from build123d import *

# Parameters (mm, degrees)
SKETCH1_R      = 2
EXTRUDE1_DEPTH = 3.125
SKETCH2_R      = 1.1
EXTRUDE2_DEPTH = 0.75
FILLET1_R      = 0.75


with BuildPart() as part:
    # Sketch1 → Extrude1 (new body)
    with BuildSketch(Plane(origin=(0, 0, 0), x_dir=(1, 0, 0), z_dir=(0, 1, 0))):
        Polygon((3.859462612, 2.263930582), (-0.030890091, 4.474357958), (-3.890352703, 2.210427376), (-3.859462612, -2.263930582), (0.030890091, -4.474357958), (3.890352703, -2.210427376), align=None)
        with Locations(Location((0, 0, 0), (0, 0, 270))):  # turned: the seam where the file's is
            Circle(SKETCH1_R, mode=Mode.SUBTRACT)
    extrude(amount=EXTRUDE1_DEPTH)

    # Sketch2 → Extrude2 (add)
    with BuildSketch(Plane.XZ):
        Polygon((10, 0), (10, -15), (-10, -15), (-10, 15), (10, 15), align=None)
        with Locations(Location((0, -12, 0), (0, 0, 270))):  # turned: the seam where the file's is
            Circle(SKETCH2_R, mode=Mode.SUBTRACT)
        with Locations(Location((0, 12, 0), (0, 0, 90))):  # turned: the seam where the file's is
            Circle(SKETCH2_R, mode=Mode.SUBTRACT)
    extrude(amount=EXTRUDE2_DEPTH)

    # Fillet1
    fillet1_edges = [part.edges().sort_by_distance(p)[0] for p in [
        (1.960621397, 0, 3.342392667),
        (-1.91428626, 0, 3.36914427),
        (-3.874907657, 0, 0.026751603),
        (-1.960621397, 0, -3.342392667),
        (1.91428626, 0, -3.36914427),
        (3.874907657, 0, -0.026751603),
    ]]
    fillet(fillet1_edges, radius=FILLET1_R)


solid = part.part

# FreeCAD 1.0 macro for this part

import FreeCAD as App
import Part
import Sketcher
from FreeCAD import Vector


def edges_at(feature, points):
    """Names of the edges that pass closest to the given points."""
    edges = feature.Shape.Edges
    near = lambda p: min(range(len(edges)), key=lambda i: edges[i].distToShape(Part.Vertex(*p))[0])
    return sorted({f"Edge{near(p) + 1}" for p in points})


def add_polygon(sketch, points):
    """Adds a closed chain of lines whose ends are joined by coincident constraints."""
    first, n = sketch.GeometryCount, len(points)
    for a, b in zip(points, points[1:] + points[:1]):
        sketch.addGeometry(Part.LineSegment(App.Vector(*a, 0), App.Vector(*b, 0)), False)
    for i in range(n):
        sketch.addConstraint(Sketcher.Constraint("Coincident", first + i, 2, first + (i + 1) % n, 1))

doc = App.newDocument("Part")
body = doc.addObject("PartDesign::Body", "Body")

# Sketch on XZ plane
sketch1 = body.newObject("Sketcher::SketchObject", "Sketch")
sketch1.AttachmentSupport = (doc.getObject("XZ_Plane"), [""])
sketch1.MapMode = "FlatFace"
add_polygon(sketch1, [(3.9, -2.3), (0, -4.5), (-3.9, -2.2), (-3.9, 2.3), (0, 4.5), (3.9, 2.2)])  # lines 0-5
sketch1.addGeometry(Part.Circle(Vector(0, 0, 0), Vector(0, 0, 1), 2), False)  # 6
sketch1.addConstraint([
    Sketcher.Constraint("Coincident", 6, 3, -1, 1),
    Sketcher.Constraint("Symmetric", 0, 2, 3, 2, -1, 1),
    Sketcher.Constraint("Symmetric", 1, 2, 4, 2, -1, 1),
    Sketcher.Constraint("Symmetric", 2, 2, 5, 2, -1, 1),
    Sketcher.Constraint("Equal", 0, 1),
    Sketcher.Constraint("Equal", 1, 2),
    Sketcher.Constraint("Diameter", 6, 4.0),
    Sketcher.Constraint("DistanceX", 0, 2, -1, 1, 0.03089),
    Sketcher.Constraint("DistanceY", -1, 1, 2, 2, 2.263931),
    Sketcher.Constraint("DistanceY", 0, 2, 1, 2, 2.263931),
    Sketcher.Constraint("DistanceX", 1, 2, 2, 2, 0.03089),
])
pad1 = body.newObject("PartDesign::Pad", "Pad")
pad1.Profile = sketch1
pad1.Length = 3.125
pad1.Reversed = True

# Sketch on XZ plane
sketch2 = body.newObject("Sketcher::SketchObject", "Sketch001")
sketch2.AttachmentSupport = (doc.getObject("XZ_Plane"), [""])
sketch2.MapMode = "FlatFace"
add_polygon(sketch2, [(10, -15), (10, 15), (-10, 15), (-10, -15)])  # lines 0-3
sketch2.addGeometry(Part.Circle(Vector(0, -12, 0), Vector(0, 0, 1), 1.1), False)  # 4
sketch2.addGeometry(Part.Circle(Vector(0, 12, 0), Vector(0, 0, 1), 1.1), False)  # 5
sketch2.addConstraint([
    Sketcher.Constraint("Vertical", 0),
    Sketcher.Constraint("Horizontal", 1),
    Sketcher.Constraint("Vertical", 2),
    Sketcher.Constraint("Horizontal", 3),
    Sketcher.Constraint("Equal", 4, 5),
    Sketcher.Constraint("Symmetric", 4, 3, 5, 3, -1, 1),
    Sketcher.Constraint("Symmetric", 0, 2, 2, 2, -1, 1),
    Sketcher.Constraint("PointOnObject", 4, 3, -2),
    Sketcher.Constraint("Diameter", 4, 2.2),
    Sketcher.Constraint("DistanceX", 1, 2, 1, 1, 20.0),
    Sketcher.Constraint("DistanceY", 0, 1, 0, 2, 30.0),
    Sketcher.Constraint("DistanceY", 4, 3, -1, 1, 12.0),
])
pad2 = body.newObject("PartDesign::Pad", "Pad001")
pad2.Profile = sketch2
pad2.Length = 0.75
doc.recompute()

fillet = body.newObject("PartDesign::Fillet", "Fillet")
fillet.Base = (pad2, edges_at(pad2, [
    (1.961, 0, 3.342),
    (-1.914, 0, 3.369),
    (-3.875, 0, 0.027),
    (-1.961, 0, -3.342),
    (1.914, 0, -3.369),
    (3.875, 0, -0.027),
]))
fillet.Radius = 0.75

doc.recompute()
